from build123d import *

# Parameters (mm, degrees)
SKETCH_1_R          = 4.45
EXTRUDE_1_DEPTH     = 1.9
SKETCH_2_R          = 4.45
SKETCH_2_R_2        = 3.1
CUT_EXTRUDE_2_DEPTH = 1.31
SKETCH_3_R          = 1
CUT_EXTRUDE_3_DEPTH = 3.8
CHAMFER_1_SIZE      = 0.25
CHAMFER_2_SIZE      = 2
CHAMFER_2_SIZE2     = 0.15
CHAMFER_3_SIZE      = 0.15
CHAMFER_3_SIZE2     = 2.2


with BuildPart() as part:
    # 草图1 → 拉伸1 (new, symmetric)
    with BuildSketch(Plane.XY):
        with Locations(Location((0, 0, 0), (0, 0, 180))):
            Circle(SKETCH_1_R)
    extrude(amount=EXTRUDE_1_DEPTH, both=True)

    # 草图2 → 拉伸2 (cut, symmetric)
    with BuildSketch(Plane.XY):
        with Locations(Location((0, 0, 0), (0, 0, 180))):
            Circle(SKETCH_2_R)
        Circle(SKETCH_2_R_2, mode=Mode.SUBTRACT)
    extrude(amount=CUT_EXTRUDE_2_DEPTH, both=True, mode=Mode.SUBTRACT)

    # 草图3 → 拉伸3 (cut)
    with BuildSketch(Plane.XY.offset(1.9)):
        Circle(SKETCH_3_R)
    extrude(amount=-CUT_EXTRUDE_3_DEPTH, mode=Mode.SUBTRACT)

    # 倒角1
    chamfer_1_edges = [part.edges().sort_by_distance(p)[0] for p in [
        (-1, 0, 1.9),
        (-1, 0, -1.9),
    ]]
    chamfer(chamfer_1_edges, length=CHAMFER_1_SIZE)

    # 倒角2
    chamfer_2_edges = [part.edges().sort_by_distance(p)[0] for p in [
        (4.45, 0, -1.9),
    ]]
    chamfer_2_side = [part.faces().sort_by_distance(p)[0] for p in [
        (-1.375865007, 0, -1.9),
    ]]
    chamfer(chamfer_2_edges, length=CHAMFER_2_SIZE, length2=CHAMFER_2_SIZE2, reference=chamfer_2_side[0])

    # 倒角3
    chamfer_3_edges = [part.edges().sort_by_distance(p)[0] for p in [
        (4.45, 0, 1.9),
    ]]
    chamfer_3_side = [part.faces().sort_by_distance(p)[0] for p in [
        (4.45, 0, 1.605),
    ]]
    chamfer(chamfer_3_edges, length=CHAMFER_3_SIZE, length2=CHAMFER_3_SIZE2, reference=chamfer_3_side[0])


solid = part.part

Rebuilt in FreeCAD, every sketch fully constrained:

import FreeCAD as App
import Part
import Sketcher
from FreeCAD import Vector


def edges_at(feature, points):
    """Names of the edges that pass closest to the given points."""
    edges = feature.Shape.Edges
    near = lambda p: min(range(len(edges)), key=lambda i: edges[i].distToShape(Part.Vertex(*p))[0])
    return sorted({f"Edge{near(p) + 1}" for p in points})

doc = App.newDocument("Part")
params = doc.addObject("Spreadsheet::Sheet", "Params")
for row, (alias, value) in enumerate([
    ("sketch1_diameter", "8.9 mm"),
    ("pad1_length", "3.8 mm"),
    ("sketch2_diameter", "8.9 mm"),
    ("sketch2_diameter2", "6.2 mm"),
    ("pocket1_length", "2.62 mm"),
    ("sketch3_diameter", "2 mm"),
    ("pocket2_length", "3.8 mm"),
    ("chamfer_size", "0.25 mm"),
    ("chamfer2_size", "2 mm"),
    ("chamfer2_size2", "0.15 mm"),
    ("chamfer3_size", "0.15 mm"),
    ("chamfer3_size2", "2.2 mm"),
], start=1):
    params.set(f"A{row}", alias)
    params.set(f"B{row}", "=" + value)
    params.setAlias(f"B{row}", alias)

body = doc.addObject("PartDesign::Body", "Body")

# Sketch on XY plane
sketch1 = body.newObject("Sketcher::SketchObject", "Sketch")
sketch1.AttachmentSupport = (doc.getObject("XY_Plane"), [""])
sketch1.MapMode = "FlatFace"
sketch1.addGeometry(Part.Circle(Vector(0, 0, 0), Vector(0, 0, 1), 4.45), False)
sketch1.addConstraint([
    Sketcher.Constraint("Coincident", 0, 3, -1, 1),
    Sketcher.Constraint("Diameter", 0, 8.9),
])
sketch1.setExpression("Constraints[1]", "Params.sketch1_diameter")
pad1 = body.newObject("PartDesign::Pad", "Pad")
pad1.Profile = sketch1
pad1.setExpression("Length", "Params.pad1_length")
pad1.Midplane = True

# Sketch on XY plane
sketch2 = body.newObject("Sketcher::SketchObject", "Sketch001")
sketch2.AttachmentSupport = (doc.getObject("XY_Plane"), [""])
sketch2.MapMode = "FlatFace"
sketch2.addGeometry([
    Part.Circle(Vector(0, 0, 0), Vector(0, 0, 1), 4.45),
    Part.Circle(Vector(0, 0, 0), Vector(0, 0, 1), 3.1),
], False)
sketch2.addConstraint([
    Sketcher.Constraint("Coincident", 0, 3, -1, 1),
    Sketcher.Constraint("Coincident", 1, 3, -1, 1),
    Sketcher.Constraint("Diameter", 0, 8.9),
    Sketcher.Constraint("Diameter", 1, 6.2),
])
sketch2.setExpression("Constraints[2]", "Params.sketch2_diameter")
sketch2.setExpression("Constraints[3]", "Params.sketch2_diameter2")
pocket1 = body.newObject("PartDesign::Pocket", "Pocket")
pocket1.Profile = sketch2
pocket1.setExpression("Length", "Params.pocket1_length")
pocket1.Midplane = True

# Sketch on XY plane
sketch3 = body.newObject("Sketcher::SketchObject", "Sketch002")
sketch3.AttachmentSupport = (doc.getObject("XY_Plane"), [""])
sketch3.MapMode = "FlatFace"
sketch3.AttachmentOffset = App.Placement(Vector(0, 0, 1.9), App.Rotation())
sketch3.addGeometry(Part.Circle(Vector(0, 0, 0), Vector(0, 0, 1), 1), False)
sketch3.addConstraint([
    Sketcher.Constraint("Coincident", 0, 3, -1, 1),
    Sketcher.Constraint("Diameter", 0, 2.0),
])
sketch3.setExpression("Constraints[1]", "Params.sketch3_diameter")
pocket2 = body.newObject("PartDesign::Pocket", "Pocket001")
pocket2.Profile = sketch3
pocket2.setExpression("Length", "Params.pocket2_length")
doc.recompute()

chamfer = body.newObject("PartDesign::Chamfer", "Chamfer")
chamfer.Base = (pocket2, edges_at(pocket2, [(-1, 0, 1.9), (-1, 0, -1.9)]))
chamfer.setExpression("Size", "Params.chamfer_size")
doc.recompute()

chamfer2 = body.newObject("PartDesign::Chamfer", "Chamfer001")
chamfer2.Base = (chamfer, edges_at(chamfer, [(4.45, 0, -1.9)]))
chamfer2.ChamferType = "Two distances"
chamfer2.setExpression("Size", "Params.chamfer2_size")
chamfer2.setExpression("Size2", "Params.chamfer2_size2")
doc.recompute()

chamfer3 = body.newObject("PartDesign::Chamfer", "Chamfer002")
chamfer3.Base = (chamfer2, edges_at(chamfer2, [(4.45, 0, 1.9)]))
chamfer3.ChamferType = "Two distances"
chamfer3.setExpression("Size", "Params.chamfer3_size")
chamfer3.setExpression("Size2", "Params.chamfer3_size2")
chamfer3.FlipDirection = True

doc.recompute()
